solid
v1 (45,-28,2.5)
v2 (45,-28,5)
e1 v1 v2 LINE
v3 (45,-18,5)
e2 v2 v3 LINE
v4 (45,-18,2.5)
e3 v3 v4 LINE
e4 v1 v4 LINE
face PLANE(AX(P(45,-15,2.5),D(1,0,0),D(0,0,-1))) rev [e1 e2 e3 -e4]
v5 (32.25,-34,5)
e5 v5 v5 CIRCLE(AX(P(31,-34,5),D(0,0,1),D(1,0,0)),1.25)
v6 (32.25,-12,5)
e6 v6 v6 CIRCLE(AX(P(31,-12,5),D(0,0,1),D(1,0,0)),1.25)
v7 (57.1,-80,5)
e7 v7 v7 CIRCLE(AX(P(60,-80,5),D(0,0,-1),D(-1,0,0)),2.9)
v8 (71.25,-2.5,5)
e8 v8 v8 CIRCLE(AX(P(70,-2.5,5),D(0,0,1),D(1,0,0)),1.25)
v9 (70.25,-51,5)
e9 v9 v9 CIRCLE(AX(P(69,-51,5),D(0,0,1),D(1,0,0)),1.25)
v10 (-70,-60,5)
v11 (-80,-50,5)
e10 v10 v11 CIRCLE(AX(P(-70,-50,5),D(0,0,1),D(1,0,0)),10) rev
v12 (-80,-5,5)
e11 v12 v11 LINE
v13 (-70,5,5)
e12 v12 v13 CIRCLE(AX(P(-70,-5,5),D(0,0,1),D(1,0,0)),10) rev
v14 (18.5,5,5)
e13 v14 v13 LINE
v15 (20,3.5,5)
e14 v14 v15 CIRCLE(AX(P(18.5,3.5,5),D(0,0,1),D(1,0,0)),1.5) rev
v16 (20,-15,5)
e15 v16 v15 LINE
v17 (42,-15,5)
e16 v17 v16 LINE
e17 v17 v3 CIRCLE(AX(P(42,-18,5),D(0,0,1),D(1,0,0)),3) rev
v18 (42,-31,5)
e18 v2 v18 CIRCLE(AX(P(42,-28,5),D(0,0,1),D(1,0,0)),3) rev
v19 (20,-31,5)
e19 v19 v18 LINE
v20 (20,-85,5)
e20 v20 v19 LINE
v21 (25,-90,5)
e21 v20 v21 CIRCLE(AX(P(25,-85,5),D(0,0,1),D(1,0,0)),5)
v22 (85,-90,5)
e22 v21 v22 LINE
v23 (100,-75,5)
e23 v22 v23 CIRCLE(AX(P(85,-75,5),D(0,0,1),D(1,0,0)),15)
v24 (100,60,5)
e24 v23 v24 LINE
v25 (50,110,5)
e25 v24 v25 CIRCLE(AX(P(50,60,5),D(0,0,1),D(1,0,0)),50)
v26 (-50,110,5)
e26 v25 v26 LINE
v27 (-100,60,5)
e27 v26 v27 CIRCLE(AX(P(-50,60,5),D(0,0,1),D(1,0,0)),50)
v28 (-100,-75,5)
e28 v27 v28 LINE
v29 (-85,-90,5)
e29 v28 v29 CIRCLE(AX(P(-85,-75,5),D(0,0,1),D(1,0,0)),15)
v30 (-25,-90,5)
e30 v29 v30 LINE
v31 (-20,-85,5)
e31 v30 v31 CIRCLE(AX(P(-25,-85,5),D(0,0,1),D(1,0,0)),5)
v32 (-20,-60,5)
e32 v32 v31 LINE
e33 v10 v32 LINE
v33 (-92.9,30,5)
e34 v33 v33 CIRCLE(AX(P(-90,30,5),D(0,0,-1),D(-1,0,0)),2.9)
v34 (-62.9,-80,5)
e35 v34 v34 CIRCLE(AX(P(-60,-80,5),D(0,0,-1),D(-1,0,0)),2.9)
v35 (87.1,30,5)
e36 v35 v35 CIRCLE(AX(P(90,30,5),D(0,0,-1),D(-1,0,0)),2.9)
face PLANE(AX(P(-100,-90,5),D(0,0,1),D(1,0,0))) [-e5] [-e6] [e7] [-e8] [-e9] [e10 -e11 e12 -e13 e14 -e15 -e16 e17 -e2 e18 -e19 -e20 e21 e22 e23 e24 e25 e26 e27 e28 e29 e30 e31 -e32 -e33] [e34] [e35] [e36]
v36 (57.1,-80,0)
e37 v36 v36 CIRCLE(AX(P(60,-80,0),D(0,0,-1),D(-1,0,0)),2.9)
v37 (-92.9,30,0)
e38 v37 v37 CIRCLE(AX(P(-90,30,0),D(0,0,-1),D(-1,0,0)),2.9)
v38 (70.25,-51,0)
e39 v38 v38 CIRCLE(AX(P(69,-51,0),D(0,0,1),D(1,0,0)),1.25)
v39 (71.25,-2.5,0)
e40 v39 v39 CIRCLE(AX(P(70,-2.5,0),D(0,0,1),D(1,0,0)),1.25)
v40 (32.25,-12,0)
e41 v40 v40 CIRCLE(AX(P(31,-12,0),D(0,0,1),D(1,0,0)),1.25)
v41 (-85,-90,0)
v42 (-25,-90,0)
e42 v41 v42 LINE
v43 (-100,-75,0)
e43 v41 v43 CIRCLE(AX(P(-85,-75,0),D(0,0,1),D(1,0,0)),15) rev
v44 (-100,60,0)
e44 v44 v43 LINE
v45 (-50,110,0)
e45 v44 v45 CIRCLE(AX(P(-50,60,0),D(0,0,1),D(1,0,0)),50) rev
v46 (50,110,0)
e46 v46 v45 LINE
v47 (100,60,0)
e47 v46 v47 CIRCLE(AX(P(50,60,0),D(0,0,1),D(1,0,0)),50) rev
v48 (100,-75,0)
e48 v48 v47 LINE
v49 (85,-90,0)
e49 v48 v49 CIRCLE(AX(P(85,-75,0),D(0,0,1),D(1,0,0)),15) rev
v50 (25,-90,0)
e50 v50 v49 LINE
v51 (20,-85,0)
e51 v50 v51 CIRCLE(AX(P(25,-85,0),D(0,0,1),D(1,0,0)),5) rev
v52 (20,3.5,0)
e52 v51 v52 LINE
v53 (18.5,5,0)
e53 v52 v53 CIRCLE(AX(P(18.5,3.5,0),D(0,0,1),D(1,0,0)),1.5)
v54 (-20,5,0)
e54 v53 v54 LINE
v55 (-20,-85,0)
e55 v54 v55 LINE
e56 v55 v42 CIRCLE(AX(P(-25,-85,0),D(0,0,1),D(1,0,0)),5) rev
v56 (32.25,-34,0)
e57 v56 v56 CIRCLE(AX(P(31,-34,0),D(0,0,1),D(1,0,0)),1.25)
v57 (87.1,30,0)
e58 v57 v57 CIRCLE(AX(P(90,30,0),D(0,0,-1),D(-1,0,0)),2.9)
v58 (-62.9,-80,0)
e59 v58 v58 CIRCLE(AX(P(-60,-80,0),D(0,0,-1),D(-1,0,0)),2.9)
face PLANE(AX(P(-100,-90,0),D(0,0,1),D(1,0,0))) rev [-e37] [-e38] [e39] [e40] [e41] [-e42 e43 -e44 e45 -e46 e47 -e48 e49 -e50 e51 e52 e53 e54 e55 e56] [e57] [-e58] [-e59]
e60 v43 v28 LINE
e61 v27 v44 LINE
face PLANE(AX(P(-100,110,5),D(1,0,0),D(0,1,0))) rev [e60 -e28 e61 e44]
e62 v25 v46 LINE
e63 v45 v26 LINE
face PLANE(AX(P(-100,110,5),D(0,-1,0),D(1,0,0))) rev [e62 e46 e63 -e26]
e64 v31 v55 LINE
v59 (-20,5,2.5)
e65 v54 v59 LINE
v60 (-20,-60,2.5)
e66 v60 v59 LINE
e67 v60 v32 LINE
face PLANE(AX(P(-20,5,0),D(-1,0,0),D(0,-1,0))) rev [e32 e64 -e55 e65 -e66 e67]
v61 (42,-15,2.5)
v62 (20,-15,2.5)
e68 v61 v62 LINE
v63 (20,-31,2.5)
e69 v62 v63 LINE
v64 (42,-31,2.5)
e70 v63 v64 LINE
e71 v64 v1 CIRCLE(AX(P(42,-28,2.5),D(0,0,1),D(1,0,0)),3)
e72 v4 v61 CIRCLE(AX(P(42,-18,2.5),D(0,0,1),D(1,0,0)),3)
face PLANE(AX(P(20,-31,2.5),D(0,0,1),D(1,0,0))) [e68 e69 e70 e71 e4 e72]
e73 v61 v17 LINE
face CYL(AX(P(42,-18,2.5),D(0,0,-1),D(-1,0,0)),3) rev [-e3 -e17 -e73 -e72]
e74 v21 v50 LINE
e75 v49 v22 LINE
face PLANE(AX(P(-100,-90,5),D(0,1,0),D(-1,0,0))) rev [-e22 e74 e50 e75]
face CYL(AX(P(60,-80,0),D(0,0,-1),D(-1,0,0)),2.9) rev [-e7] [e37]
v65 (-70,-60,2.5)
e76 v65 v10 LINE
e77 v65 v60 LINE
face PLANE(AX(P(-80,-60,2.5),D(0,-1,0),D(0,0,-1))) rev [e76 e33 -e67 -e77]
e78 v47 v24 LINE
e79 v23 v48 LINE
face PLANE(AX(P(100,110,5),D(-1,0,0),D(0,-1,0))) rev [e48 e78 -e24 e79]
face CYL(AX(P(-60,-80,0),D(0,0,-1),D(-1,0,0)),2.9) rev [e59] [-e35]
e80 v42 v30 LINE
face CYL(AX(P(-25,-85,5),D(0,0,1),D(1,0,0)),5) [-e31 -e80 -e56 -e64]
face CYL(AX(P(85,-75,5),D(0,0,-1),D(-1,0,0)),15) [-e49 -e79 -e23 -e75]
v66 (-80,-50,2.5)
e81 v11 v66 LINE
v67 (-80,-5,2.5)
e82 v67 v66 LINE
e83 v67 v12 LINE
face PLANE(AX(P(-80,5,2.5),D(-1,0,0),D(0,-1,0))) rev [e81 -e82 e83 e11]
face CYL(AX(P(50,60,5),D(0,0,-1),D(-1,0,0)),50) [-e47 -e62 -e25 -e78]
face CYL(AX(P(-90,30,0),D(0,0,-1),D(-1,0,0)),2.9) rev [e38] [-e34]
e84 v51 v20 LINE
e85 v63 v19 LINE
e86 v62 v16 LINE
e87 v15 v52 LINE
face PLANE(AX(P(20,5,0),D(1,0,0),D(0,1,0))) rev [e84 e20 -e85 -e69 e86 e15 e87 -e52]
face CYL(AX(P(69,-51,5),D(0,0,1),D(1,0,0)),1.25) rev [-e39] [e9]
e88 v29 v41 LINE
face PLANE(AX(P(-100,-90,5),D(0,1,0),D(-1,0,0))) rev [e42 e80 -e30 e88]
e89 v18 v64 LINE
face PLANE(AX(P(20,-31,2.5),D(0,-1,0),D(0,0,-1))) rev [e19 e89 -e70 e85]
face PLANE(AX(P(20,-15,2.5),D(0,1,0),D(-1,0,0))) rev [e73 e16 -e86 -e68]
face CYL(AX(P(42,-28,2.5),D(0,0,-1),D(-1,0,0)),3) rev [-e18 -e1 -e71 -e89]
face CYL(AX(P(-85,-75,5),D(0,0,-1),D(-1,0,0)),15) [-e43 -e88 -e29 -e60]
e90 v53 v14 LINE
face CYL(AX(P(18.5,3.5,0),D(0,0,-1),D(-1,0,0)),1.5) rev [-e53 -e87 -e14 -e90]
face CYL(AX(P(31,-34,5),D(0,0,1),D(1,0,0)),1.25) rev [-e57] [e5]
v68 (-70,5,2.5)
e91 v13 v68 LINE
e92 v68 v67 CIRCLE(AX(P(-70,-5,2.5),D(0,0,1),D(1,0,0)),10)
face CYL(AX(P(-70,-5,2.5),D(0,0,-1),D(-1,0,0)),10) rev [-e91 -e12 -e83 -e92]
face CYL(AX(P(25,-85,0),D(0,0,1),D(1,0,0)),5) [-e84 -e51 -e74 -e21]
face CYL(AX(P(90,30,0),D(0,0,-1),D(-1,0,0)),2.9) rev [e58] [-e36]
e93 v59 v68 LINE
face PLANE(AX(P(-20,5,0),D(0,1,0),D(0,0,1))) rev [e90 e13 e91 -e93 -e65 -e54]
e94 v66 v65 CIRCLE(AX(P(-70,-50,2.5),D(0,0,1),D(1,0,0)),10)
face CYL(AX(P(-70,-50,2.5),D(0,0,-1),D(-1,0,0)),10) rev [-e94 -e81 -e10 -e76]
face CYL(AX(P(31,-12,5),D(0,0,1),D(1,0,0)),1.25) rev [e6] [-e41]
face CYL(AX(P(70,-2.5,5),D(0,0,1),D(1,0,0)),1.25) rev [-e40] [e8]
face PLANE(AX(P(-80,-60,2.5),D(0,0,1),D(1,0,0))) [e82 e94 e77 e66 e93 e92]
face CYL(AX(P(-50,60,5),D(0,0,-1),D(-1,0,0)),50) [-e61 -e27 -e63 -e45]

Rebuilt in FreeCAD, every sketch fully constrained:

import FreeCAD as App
import Part
import Sketcher
from FreeCAD import Vector
Q = App.Units.Quantity


def edges_at(feature, points):
    """Names of the edges that pass closest to the given points."""
    edges = feature.Shape.Edges
    near = lambda p: min(range(len(edges)), key=lambda i: edges[i].distToShape(Part.Vertex(*p))[0])
    return sorted({f"Edge{near(p) + 1}" for p in points})

doc = App.newDocument("Part")
params = doc.addObject("Spreadsheet::Sheet", "Params")
for row, (alias, value) in enumerate([
    ("sketch1_width", "200 mm"),
    ("pad1_length", "5 mm"),
    ("sketch2_width", "40 mm"),
    ("sketch2_height", "95 mm"),
    ("fillet_radius", "50 mm"),
    ("fillet2_radius", "1.5 mm"),
    ("sketch3_diameter", "2.5 mm"),
    ("hole_diameter", "2.5 mm"),
    ("hole_depth", "5 mm"),
    ("fillet3_radius", "15 mm"),
    ("fillet4_radius", "5 mm"),
    ("sketch4_diameter", "5.8 mm"),
    ("hole2_diameter", "5.8 mm"),
    ("hole2_depth", "5 mm"),
    ("sketch5_width", "60 mm"),
    ("sketch5_height", "65 mm"),
    ("pocket2_length", "2.5 mm"),
    ("fillet5_radius", "10 mm"),
    ("sketch6_width", "25 mm"),
    ("sketch6_height", "16 mm"),
    ("pocket3_length", "2.5 mm"),
    ("fillet6_radius", "3 mm"),
], start=1):
    params.set(f"A{row}", alias)
    params.set(f"B{row}", "=" + value)
    params.setAlias(f"B{row}", alias)

body = doc.addObject("PartDesign::Body", "Body")

# Sketch on XY plane
sketch1 = doc.addObject("Sketcher::SketchObject", "Sketch")
body.addObject(sketch1)
sketch1.AttachmentSupport = (doc.XY_Plane, [""])
sketch1.MapMode = "FlatFace"
sketch1.addGeometry(Part.LineSegment(Vector(-100, 110, 0), Vector(-100, -90, 0)), False)
sketch1.addGeometry(Part.LineSegment(Vector(-100, -90, 0), Vector(100, -90, 0)), False)
sketch1.addGeometry(Part.LineSegment(Vector(100, -90, 0), Vector(100, 110, 0)), False)
sketch1.addGeometry(Part.LineSegment(Vector(100, 110, 0), Vector(-100, 110, 0)), False)
sketch1.addConstraint(Sketcher.Constraint("Coincident", 0, 2, 1, 1))
sketch1.addConstraint(Sketcher.Constraint("Coincident", 1, 2, 2, 1))
sketch1.addConstraint(Sketcher.Constraint("Coincident", 2, 2, 3, 1))
sketch1.addConstraint(Sketcher.Constraint("Coincident", 3, 2, 0, 1))
sketch1.addConstraint(Sketcher.Constraint("Vertical", 0))
sketch1.addConstraint(Sketcher.Constraint("Horizontal", 1))
sketch1.addConstraint(Sketcher.Constraint("Vertical", 2))
sketch1.addConstraint(Sketcher.Constraint("Horizontal", 3))
sketch1.addConstraint(Sketcher.Constraint("Equal", 3, 0))
sketch1.addConstraint(Sketcher.Constraint("DistanceX", 1, 1, 1, 2, Q("200 mm")))
sketch1.addConstraint(Sketcher.Constraint("DistanceX", 0, 2, -1, 1, Q("100 mm")))
sketch1.addConstraint(Sketcher.Constraint("DistanceY", 0, 2, -1, 1, Q("90 mm")))
sketch1.setExpression("Constraints[9]", "Params.sketch1_width")
pad1 = doc.addObject("PartDesign::Pad", "Pad")
body.addObject(pad1)
pad1.Profile = sketch1
pad1.setExpression("Length", "Params.pad1_length")

# Sketch on XY plane
sketch2 = doc.addObject("Sketcher::SketchObject", "Sketch001")
body.addObject(sketch2)
sketch2.AttachmentSupport = (doc.XY_Plane, [""])
sketch2.MapMode = "FlatFace"
sketch2.AttachmentOffset = App.Placement(Vector(0, 0, 5), App.Rotation())
sketch2.addGeometry(Part.LineSegment(Vector(-20, 5, 0), Vector(-20, -90, 0)), False)
sketch2.addGeometry(Part.LineSegment(Vector(-20, -90, 0), Vector(20, -90, 0)), False)
sketch2.addGeometry(Part.LineSegment(Vector(20, -90, 0), Vector(20, 5, 0)), False)
sketch2.addGeometry(Part.LineSegment(Vector(20, 5, 0), Vector(-20, 5, 0)), False)
sketch2.addConstraint(Sketcher.Constraint("Coincident", 0, 2, 1, 1))
sketch2.addConstraint(Sketcher.Constraint("Coincident", 1, 2, 2, 1))
sketch2.addConstraint(Sketcher.Constraint("Coincident", 2, 2, 3, 1))
sketch2.addConstraint(Sketcher.Constraint("Coincident", 3, 2, 0, 1))
sketch2.addConstraint(Sketcher.Constraint("Vertical", 0))
sketch2.addConstraint(Sketcher.Constraint("Horizontal", 1))
sketch2.addConstraint(Sketcher.Constraint("Vertical", 2))
sketch2.addConstraint(Sketcher.Constraint("Horizontal", 3))
sketch2.addConstraint(Sketcher.Constraint("DistanceX", 1, 1, 1, 2, Q("40 mm")))
sketch2.addConstraint(Sketcher.Constraint("DistanceY", 0, 2, 0, 1, Q("95 mm")))
sketch2.addConstraint(Sketcher.Constraint("DistanceX", 0, 2, -1, 1, Q("20 mm")))
sketch2.addConstraint(Sketcher.Constraint("DistanceY", 0, 2, -1, 1, Q("90 mm")))
sketch2.setExpression("Constraints[8]", "Params.sketch2_width")
sketch2.setExpression("Constraints[9]", "Params.sketch2_height")
pocket1 = doc.addObject("PartDesign::Pocket", "Pocket")
body.addObject(pocket1)
pocket1.Profile = sketch2
pocket1.Type = "ThroughAll"
doc.recompute()

fillet = doc.addObject("PartDesign::Fillet", "Fillet")
body.addObject(fillet)
fillet.Base = (pocket1, edges_at(pocket1, [(-100, 110, 2.5), (100, 110, 2.5)]))
fillet.setExpression("Radius", "Params.fillet_radius")
doc.recompute()

fillet2 = doc.addObject("PartDesign::Fillet", "Fillet001")
body.addObject(fillet2)
fillet2.Base = (fillet, edges_at(fillet, [(20, 5, 2.5)]))
fillet2.setExpression("Radius", "Params.fillet2_radius")

# Sketch on XY plane
sketch3 = doc.addObject("Sketcher::SketchObject", "Sketch002")
body.addObject(sketch3)
sketch3.AttachmentSupport = (doc.XY_Plane, [""])
sketch3.MapMode = "FlatFace"
sketch3.AttachmentOffset = App.Placement(Vector(0, 0, 5), App.Rotation())
sketch3.addGeometry(Part.Circle(Vector(70, -2.5, 0), Vector(0, 0, 1), 1.2), False)
sketch3.addGeometry(Part.Circle(Vector(31, -12, 0), Vector(0, 0, 1), 1.2), False)
sketch3.addGeometry(Part.Circle(Vector(31, -34, 0), Vector(0, 0, 1), 1.2), False)
sketch3.addGeometry(Part.Circle(Vector(69, -51, 0), Vector(0, 0, 1), 1.2), False)
sketch3.addConstraint(Sketcher.Constraint("Equal", 0, 1))
sketch3.addConstraint(Sketcher.Constraint("Equal", 1, 2))
sketch3.addConstraint(Sketcher.Constraint("Equal", 2, 3))
sketch3.addConstraint(Sketcher.Constraint("Vertical", 1, 3, 2, 3))
sketch3.addConstraint(Sketcher.Constraint("Diameter", 0, Q("2.5 mm")))
sketch3.addConstraint(Sketcher.Constraint("DistanceX", -1, 1, 0, 3, Q("70 mm")))
sketch3.addConstraint(Sketcher.Constraint("DistanceX", -1, 1, 1, 3, Q("31 mm")))
sketch3.addConstraint(Sketcher.Constraint("DistanceY", 1, 3, -1, 1, Q("12 mm")))
sketch3.addConstraint(Sketcher.Constraint("DistanceY", 2, 3, -1, 1, Q("34 mm")))
sketch3.addConstraint(Sketcher.Constraint("DistanceX", -1, 1, 3, 3, Q("69 mm")))
sketch3.addConstraint(Sketcher.Constraint("DistanceY", 3, 3, -1, 1, Q("51 mm")))
sketch3.addConstraint(Sketcher.Constraint("DistanceY", 0, 3, -1, 1, Q("2.5 mm")))
sketch3.setExpression("Constraints[4]", "Params.sketch3_diameter")
doc.recompute()
hole = doc.addObject("PartDesign::Hole", "Hole")
body.addObject(hole)
hole.Profile = sketch3
hole.ThreadType = "None"
hole.setExpression("Diameter", "Params.hole_diameter")
hole.DepthType = "Dimension"
hole.setExpression("Depth", "Params.hole_depth")
hole.DrillPoint = "Angled"
hole.DrillPointAngle = 118
doc.recompute()

fillet3 = doc.addObject("PartDesign::Fillet", "Fillet002")
body.addObject(fillet3)
fillet3.Base = (hole, edges_at(hole, [(100, -90, 2.5), (-100, -90, 2.5)]))
fillet3.setExpression("Radius", "Params.fillet3_radius")
doc.recompute()

fillet4 = doc.addObject("PartDesign::Fillet", "Fillet003")
body.addObject(fillet4)
fillet4.Base = (fillet3, edges_at(fillet3, [(-20, -90, 2.5), (20, -90, 2.5)]))
fillet4.setExpression("Radius", "Params.fillet4_radius")

# Sketch on XY plane
sketch4 = doc.addObject("Sketcher::SketchObject", "Sketch003")
body.addObject(sketch4)
sketch4.AttachmentSupport = (doc.XY_Plane, [""])
sketch4.MapMode = "FlatFace"
sketch4.addGeometry(Part.Circle(Vector(60, -80, 0), Vector(0, 0, 1), 2.9), False)
sketch4.addGeometry(Part.Circle(Vector(-60, -80, 0), Vector(0, 0, 1), 2.9), False)
sketch4.addGeometry(Part.Circle(Vector(90, 30, 0), Vector(0, 0, 1), 2.9), False)
sketch4.addGeometry(Part.Circle(Vector(-90, 30, 0), Vector(0, 0, 1), 2.9), False)
sketch4.addConstraint(Sketcher.Constraint("Equal", 0, 1))
sketch4.addConstraint(Sketcher.Constraint("Equal", 1, 2))
sketch4.addConstraint(Sketcher.Constraint("Equal", 2, 3))
sketch4.addConstraint(Sketcher.Constraint("Symmetric", 0, 3, 1, 3, -2))
sketch4.addConstraint(Sketcher.Constraint("Symmetric", 2, 3, 3, 3, -2))
sketch4.addConstraint(Sketcher.Constraint("Diameter", 0, Q("5.8 mm")))
sketch4.addConstraint(Sketcher.Constraint("DistanceX", -1, 1, 0, 3, Q("60 mm")))
sketch4.addConstraint(Sketcher.Constraint("DistanceY", 0, 3, -1, 1, Q("80 mm")))
sketch4.addConstraint(Sketcher.Constraint("DistanceX", -1, 1, 2, 3, Q("90 mm")))
sketch4.addConstraint(Sketcher.Constraint("DistanceY", -1, 1, 2, 3, Q("30 mm")))
sketch4.setExpression("Constraints[5]", "Params.sketch4_diameter")
doc.recompute()
hole2 = doc.addObject("PartDesign::Hole", "Hole001")
body.addObject(hole2)
hole2.Profile = sketch4
hole2.ThreadType = "None"
hole2.setExpression("Diameter", "Params.hole2_diameter")
hole2.DepthType = "Dimension"
hole2.setExpression("Depth", "Params.hole2_depth")
hole2.DrillPoint = "Angled"
hole2.DrillPointAngle = 118
hole2.Reversed = True

# Sketch on XY plane
sketch5 = doc.addObject("Sketcher::SketchObject", "Sketch004")
body.addObject(sketch5)
sketch5.AttachmentSupport = (doc.XY_Plane, [""])
sketch5.MapMode = "FlatFace"
sketch5.AttachmentOffset = App.Placement(Vector(0, 0, 5), App.Rotation())
sketch5.addGeometry(Part.LineSegment(Vector(-80, 5, 0), Vector(-80, -60, 0)), False)
sketch5.addGeometry(Part.LineSegment(Vector(-80, -60, 0), Vector(-20, -60, 0)), False)
sketch5.addGeometry(Part.LineSegment(Vector(-20, -60, 0), Vector(-20, 5, 0)), False)
sketch5.addGeometry(Part.LineSegment(Vector(-20, 5, 0), Vector(-80, 5, 0)), False)
sketch5.addConstraint(Sketcher.Constraint("Coincident", 0, 2, 1, 1))
sketch5.addConstraint(Sketcher.Constraint("Coincident", 1, 2, 2, 1))
sketch5.addConstraint(Sketcher.Constraint("Coincident", 2, 2, 3, 1))
sketch5.addConstraint(Sketcher.Constraint("Coincident", 3, 2, 0, 1))
sketch5.addConstraint(Sketcher.Constraint("Vertical", 0))
sketch5.addConstraint(Sketcher.Constraint("Horizontal", 1))
sketch5.addConstraint(Sketcher.Constraint("Vertical", 2))
sketch5.addConstraint(Sketcher.Constraint("Horizontal", 3))
sketch5.addConstraint(Sketcher.Constraint("DistanceX", 1, 1, 1, 2, Q("60 mm")))
sketch5.addConstraint(Sketcher.Constraint("DistanceY", 0, 2, 0, 1, Q("65 mm")))
sketch5.addConstraint(Sketcher.Constraint("DistanceX", 0, 2, -1, 1, Q("80 mm")))
sketch5.addConstraint(Sketcher.Constraint("DistanceY", 0, 2, -1, 1, Q("60 mm")))
sketch5.setExpression("Constraints[8]", "Params.sketch5_width")
sketch5.setExpression("Constraints[9]", "Params.sketch5_height")
pocket2 = doc.addObject("PartDesign::Pocket", "Pocket001")
body.addObject(pocket2)
pocket2.Profile = sketch5
pocket2.setExpression("Length", "Params.pocket2_length")
doc.recompute()

fillet5 = doc.addObject("PartDesign::Fillet", "Fillet004")
body.addObject(fillet5)
fillet5.Base = (pocket2, edges_at(pocket2, [(-80, -60, 3.75), (-80, 5, 3.75)]))
fillet5.setExpression("Radius", "Params.fillet5_radius")

# Sketch on XY plane
sketch6 = doc.addObject("Sketcher::SketchObject", "Sketch005")
body.addObject(sketch6)
sketch6.AttachmentSupport = (doc.XY_Plane, [""])
sketch6.MapMode = "FlatFace"
sketch6.AttachmentOffset = App.Placement(Vector(0, 0, 5), App.Rotation())
sketch6.addGeometry(Part.LineSegment(Vector(20, -15, 0), Vector(20, -31, 0)), False)
sketch6.addGeometry(Part.LineSegment(Vector(20, -31, 0), Vector(45, -31, 0)), False)
sketch6.addGeometry(Part.LineSegment(Vector(45, -31, 0), Vector(45, -15, 0)), False)
sketch6.addGeometry(Part.LineSegment(Vector(45, -15, 0), Vector(20, -15, 0)), False)
sketch6.addConstraint(Sketcher.Constraint("Coincident", 0, 2, 1, 1))
sketch6.addConstraint(Sketcher.Constraint("Coincident", 1, 2, 2, 1))
sketch6.addConstraint(Sketcher.Constraint("Coincident", 2, 2, 3, 1))
sketch6.addConstraint(Sketcher.Constraint("Coincident", 3, 2, 0, 1))
sketch6.addConstraint(Sketcher.Constraint("Vertical", 0))
sketch6.addConstraint(Sketcher.Constraint("Horizontal", 1))
sketch6.addConstraint(Sketcher.Constraint("Vertical", 2))
sketch6.addConstraint(Sketcher.Constraint("Horizontal", 3))
sketch6.addConstraint(Sketcher.Constraint("DistanceX", 1, 1, 1, 2, Q("25 mm")))
sketch6.addConstraint(Sketcher.Constraint("DistanceY", 0, 2, 0, 1, Q("16 mm")))
sketch6.addConstraint(Sketcher.Constraint("DistanceX", -1, 1, 0, 2, Q("20 mm")))
sketch6.addConstraint(Sketcher.Constraint("DistanceY", 0, 2, -1, 1, Q("31 mm")))
sketch6.setExpression("Constraints[8]", "Params.sketch6_width")
sketch6.setExpression("Constraints[9]", "Params.sketch6_height")
pocket3 = doc.addObject("PartDesign::Pocket", "Pocket002")
body.addObject(pocket3)
pocket3.Profile = sketch6
pocket3.setExpression("Length", "Params.pocket3_length")
doc.recompute()

fillet6 = doc.addObject("PartDesign::Fillet", "Fillet005")
body.addObject(fillet6)
fillet6.Base = (pocket3, edges_at(pocket3, [(45, -15, 3.75), (45, -31, 3.75)]))
fillet6.setExpression("Radius", "Params.fillet6_radius")

doc.recompute()
